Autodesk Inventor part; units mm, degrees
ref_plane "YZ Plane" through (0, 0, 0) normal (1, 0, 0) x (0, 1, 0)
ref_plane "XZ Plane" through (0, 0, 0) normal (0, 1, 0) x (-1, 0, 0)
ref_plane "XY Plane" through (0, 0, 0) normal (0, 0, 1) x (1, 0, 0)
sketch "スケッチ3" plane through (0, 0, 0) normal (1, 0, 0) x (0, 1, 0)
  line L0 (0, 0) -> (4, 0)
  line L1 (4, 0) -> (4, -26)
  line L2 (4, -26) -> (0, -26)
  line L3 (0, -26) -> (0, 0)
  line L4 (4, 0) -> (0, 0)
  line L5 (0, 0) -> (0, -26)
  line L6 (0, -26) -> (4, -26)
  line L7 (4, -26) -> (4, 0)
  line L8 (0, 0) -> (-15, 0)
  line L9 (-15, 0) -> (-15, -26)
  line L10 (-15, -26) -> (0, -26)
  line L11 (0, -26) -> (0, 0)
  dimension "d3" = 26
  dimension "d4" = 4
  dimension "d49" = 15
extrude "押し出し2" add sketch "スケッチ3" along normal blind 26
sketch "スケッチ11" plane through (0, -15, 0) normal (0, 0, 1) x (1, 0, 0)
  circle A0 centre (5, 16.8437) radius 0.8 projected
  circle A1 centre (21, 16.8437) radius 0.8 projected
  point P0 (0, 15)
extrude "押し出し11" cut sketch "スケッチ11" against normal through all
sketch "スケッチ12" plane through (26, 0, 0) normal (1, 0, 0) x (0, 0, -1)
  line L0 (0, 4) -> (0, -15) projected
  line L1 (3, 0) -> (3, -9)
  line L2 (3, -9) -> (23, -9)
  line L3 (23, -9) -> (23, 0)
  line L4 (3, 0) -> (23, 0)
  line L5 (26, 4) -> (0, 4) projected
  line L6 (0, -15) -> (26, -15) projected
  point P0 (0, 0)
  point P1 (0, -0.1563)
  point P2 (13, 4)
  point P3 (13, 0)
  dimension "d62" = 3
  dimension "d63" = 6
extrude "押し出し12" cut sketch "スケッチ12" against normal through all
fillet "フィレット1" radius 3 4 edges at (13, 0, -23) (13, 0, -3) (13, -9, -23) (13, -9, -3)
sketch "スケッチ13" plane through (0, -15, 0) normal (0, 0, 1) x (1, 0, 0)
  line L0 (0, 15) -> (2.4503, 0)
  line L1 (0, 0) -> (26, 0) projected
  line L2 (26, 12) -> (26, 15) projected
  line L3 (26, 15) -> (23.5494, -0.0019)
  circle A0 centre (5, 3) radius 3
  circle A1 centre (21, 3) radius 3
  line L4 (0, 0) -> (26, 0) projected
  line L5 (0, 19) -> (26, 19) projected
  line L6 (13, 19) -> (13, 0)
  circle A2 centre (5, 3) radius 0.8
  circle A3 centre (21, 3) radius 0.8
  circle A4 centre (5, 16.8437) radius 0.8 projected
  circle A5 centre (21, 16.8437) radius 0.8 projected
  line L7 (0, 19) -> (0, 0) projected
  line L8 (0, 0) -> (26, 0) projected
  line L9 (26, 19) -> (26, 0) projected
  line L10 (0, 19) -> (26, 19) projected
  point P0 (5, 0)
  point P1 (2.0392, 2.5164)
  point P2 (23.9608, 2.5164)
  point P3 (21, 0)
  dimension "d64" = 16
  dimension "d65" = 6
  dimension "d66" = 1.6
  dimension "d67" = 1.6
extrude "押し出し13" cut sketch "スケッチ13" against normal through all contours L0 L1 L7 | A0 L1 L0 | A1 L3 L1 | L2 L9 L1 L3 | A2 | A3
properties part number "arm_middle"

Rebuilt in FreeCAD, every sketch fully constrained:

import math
import FreeCAD as App
import Part
import Sketcher
Q = App.Units.Quantity


def edges_at(feature, points):
    """Names of the edges that pass closest to the given points."""
    edges = feature.Shape.Edges
    near = lambda p: min(range(len(edges)), key=lambda i: edges[i].distToShape(Part.Vertex(*p))[0])
    return sorted({f"Edge{near(p) + 1}" for p in points})

doc = App.newDocument("Part")
params = doc.addObject("Spreadsheet::Sheet", "Params")
for row, (alias, value) in enumerate([
    ("sketch1_height", "26 mm"),
    ("pad1_length", "26 mm"),
    ("sketch2_diameter", "1.6 mm"),
    ("sketch3_width", "9 mm"),
    ("sketch3_height", "20 mm"),
    ("fillet_radius", "3 mm"),
    ("sketch4_radius", "3 mm"),
    ("sketch4_diameter", "1.6 mm"),
    ("sketch4_width", "5 mm"),
    ("sketch4_height", "15 mm"),
], start=1):
    params.set(f"A{row}", alias)
    params.set(f"B{row}", "=" + value)
    params.setAlias(f"B{row}", alias)

body = doc.addObject("PartDesign::Body", "Body")

# Sketch on YZ plane
sketch1 = body.newObject("Sketcher::SketchObject", "Sketch")
sketch1.AttachmentSupport = (doc.getObject("YZ_Plane"), [""])
sketch1.MapMode = "FlatFace"
sketch1.addGeometry([
    Part.LineSegment(App.Vector(4, 0, 0), App.Vector(-15, 0, 0)),
    Part.LineSegment(App.Vector(-15, 0, 0), App.Vector(-15, -26, 0)),
    Part.LineSegment(App.Vector(-15, -26, 0), App.Vector(4, -26, 0)),
    Part.LineSegment(App.Vector(4, -26, 0), App.Vector(4, 0, 0)),
], False)
sketch1.addConstraint([
    Sketcher.Constraint("Coincident", 0, 2, 1, 1),
    Sketcher.Constraint("Coincident", 1, 2, 2, 1),
    Sketcher.Constraint("Coincident", 2, 2, 3, 1),
    Sketcher.Constraint("Coincident", 3, 2, 0, 1),
    Sketcher.Constraint("Horizontal", 0),
    Sketcher.Constraint("Vertical", 1),
    Sketcher.Constraint("Horizontal", 2),
    Sketcher.Constraint("Vertical", 3),
    Sketcher.Constraint("PointOnObject", 0, 2, -1),
    Sketcher.Constraint("DistanceY", 1, 2, 1, 1, Q("26 mm")),
    Sketcher.Constraint("DistanceX", 0, 2, -1, 1, Q("15 mm")),
    Sketcher.Constraint("DistanceX", -1, 1, 2, 2, Q("4 mm")),
])
sketch1.setExpression("Constraints[9]", "Params.sketch1_height")
pad1 = body.newObject("PartDesign::Pad", "Pad")
pad1.Profile = sketch1
pad1.setExpression("Length", "Params.pad1_length")

# Sketch on XY plane
sketch2 = body.newObject("Sketcher::SketchObject", "Sketch001")
sketch2.AttachmentSupport = (doc.getObject("XY_Plane"), [""])
sketch2.MapMode = "FlatFace"
sketch2.addGeometry([
    Part.Circle(App.Vector(5, 1.8437, 0), App.Vector(0, 0, 1), 0.8),
    Part.Circle(App.Vector(21, 1.8437, 0), App.Vector(0, 0, 1), 0.8),
], False)
sketch2.addConstraint([
    Sketcher.Constraint("Equal", 0, 1),
    Sketcher.Constraint("Horizontal", 0, 3, 1, 3),
    Sketcher.Constraint("Diameter", 0, Q("1.6 mm")),
    Sketcher.Constraint("DistanceX", -1, 1, 0, 3, Q("5 mm")),
    Sketcher.Constraint("DistanceX", -1, 1, 1, 3, Q("21 mm")),
    Sketcher.Constraint("DistanceY", -1, 1, 0, 3, Q("1.8437 mm")),
])
sketch2.setExpression("Constraints[2]", "Params.sketch2_diameter")
pocket1 = body.newObject("PartDesign::Pocket", "Pocket")
pocket1.Profile = sketch2
pocket1.Type = "ThroughAll"

# Sketch on YZ plane
sketch3 = body.newObject("Sketcher::SketchObject", "Sketch002")
sketch3.AttachmentSupport = (doc.getObject("YZ_Plane"), [""])
sketch3.MapMode = "FlatFace"
sketch3.AttachmentOffset = App.Placement(App.Vector(0, 0, 26), App.Rotation())
sketch3.addGeometry([
    Part.LineSegment(App.Vector(0, -23, 0), App.Vector(0, -3, 0)),
    Part.LineSegment(App.Vector(0, -3, 0), App.Vector(-9, -3, 0)),
    Part.LineSegment(App.Vector(-9, -3, 0), App.Vector(-9, -23, 0)),
    Part.LineSegment(App.Vector(-9, -23, 0), App.Vector(0, -23, 0)),
], False)
sketch3.addConstraint([
    Sketcher.Constraint("Coincident", 0, 2, 1, 1),
    Sketcher.Constraint("Coincident", 1, 2, 2, 1),
    Sketcher.Constraint("Coincident", 2, 2, 3, 1),
    Sketcher.Constraint("Coincident", 3, 2, 0, 1),
    Sketcher.Constraint("Vertical", 0),
    Sketcher.Constraint("Horizontal", 1),
    Sketcher.Constraint("Vertical", 2),
    Sketcher.Constraint("Horizontal", 3),
    Sketcher.Constraint("PointOnObject", 0, 2, -2),
    Sketcher.Constraint("DistanceY", 0, 2, -1, 1, Q("3 mm")),
    Sketcher.Constraint("DistanceX", 1, 2, 1, 1, Q("9 mm")),
    Sketcher.Constraint("DistanceY", 0, 1, 0, 2, Q("20 mm")),
])
sketch3.setExpression("Constraints[10]", "Params.sketch3_width")
sketch3.setExpression("Constraints[11]", "Params.sketch3_height")
pocket2 = body.newObject("PartDesign::Pocket", "Pocket001")
pocket2.Profile = sketch3
pocket2.Type = "ThroughAll"
doc.recompute()

fillet = body.newObject("PartDesign::Fillet", "Fillet")
fillet.Base = (pocket2, edges_at(pocket2, [
    (13, 0, -23),
    (13, 0, -3),
    (13, -9, -23),
    (13, -9, -3),
]))
fillet.setExpression("Radius", "Params.fillet_radius")

# Sketch on XY plane
sketch4 = body.newObject("Sketcher::SketchObject", "Sketch003")
sketch4.AttachmentSupport = (doc.getObject("XY_Plane"), [""])
sketch4.MapMode = "FlatFace"
sketch4.addGeometry([
    Part.LineSegment(App.Vector(2.039246, -12.483649, 0), App.Vector(0, 0, 0)),  # 0
    Part.LineSegment(App.Vector(0, 0, 0), App.Vector(0, -15, 0)),  # 1
    Part.LineSegment(App.Vector(0, -15, 0), App.Vector(5, -15, 0)),  # 2
    Part.ArcOfCircle(Part.Circle(App.Vector(5, -12, 0), App.Vector(0, 0, 1), 3), math.radians(-170.722486), math.radians(-90)),  # 3
    Part.ArcOfCircle(Part.Circle(App.Vector(21, -12, 0), App.Vector(0, 0, 1), 3), math.radians(-90), math.radians(-9.277474)),  # 4
    Part.LineSegment(App.Vector(21, -15, 0), App.Vector(26, -15, 0)),  # 5
    Part.LineSegment(App.Vector(26, -15, 0), App.Vector(26, 0, 0)),  # 6
    Part.LineSegment(App.Vector(26, 0, 0), App.Vector(23.960763, -12.483648, 0)),  # 7
    Part.Circle(App.Vector(5, -12, 0), App.Vector(0, 0, 1), 0.8),  # 8
    Part.Circle(App.Vector(21, -12, 0), App.Vector(0, 0, 1), 0.8),  # 9
], False)
sketch4.addConstraint([
    Sketcher.Constraint("Coincident", 0, 2, 1, 1),
    Sketcher.Constraint("Coincident", 1, 2, 2, 1),
    Sketcher.Constraint("Tangent", 2, 2, 3, 2),
    Sketcher.Constraint("Tangent", 3, 1, 0, 1),
    Sketcher.Constraint("Tangent", 4, 1, 5, 1),
    Sketcher.Constraint("Coincident", 5, 2, 6, 1),
    Sketcher.Constraint("Coincident", 6, 2, 7, 1),
    Sketcher.Constraint("Tangent", 7, 2, 4, 2),
    Sketcher.Constraint("Vertical", 1),
    Sketcher.Constraint("Horizontal", 2),
    Sketcher.Constraint("Horizontal", 5),
    Sketcher.Constraint("Vertical", 6),
    Sketcher.Constraint("Coincident", 0, 2, -1, 1),
    Sketcher.Constraint("Coincident", 8, 3, 3, 3),
    Sketcher.Constraint("Coincident", 9, 3, 4, 3),
    Sketcher.Constraint("Equal", 3, 4),
    Sketcher.Constraint("Equal", 8, 9),
    Sketcher.Constraint("PointOnObject", 6, 2, -1),
    Sketcher.Constraint("Horizontal", 3, 3, 4, 3),
    Sketcher.Constraint("Horizontal", 3, 1, 7, 2),
    Sketcher.Constraint("Radius", 3, Q("3 mm")),
    Sketcher.Constraint("Diameter", 8, Q("1.6 mm")),
    Sketcher.Constraint("DistanceX", 3, 3, 4, 3, Q("16 mm")),
    Sketcher.Constraint("DistanceX", 2, 1, 2, 2, Q("5 mm")),
    Sketcher.Constraint("DistanceY", 1, 2, 1, 1, Q("15 mm")),
])
sketch4.setExpression("Constraints[20]", "Params.sketch4_radius")
sketch4.setExpression("Constraints[21]", "Params.sketch4_diameter")
sketch4.setExpression("Constraints[23]", "Params.sketch4_width")
sketch4.setExpression("Constraints[24]", "Params.sketch4_height")
pocket3 = body.newObject("PartDesign::Pocket", "Pocket002")
pocket3.Profile = sketch4
pocket3.Type = "ThroughAll"

doc.recompute()
